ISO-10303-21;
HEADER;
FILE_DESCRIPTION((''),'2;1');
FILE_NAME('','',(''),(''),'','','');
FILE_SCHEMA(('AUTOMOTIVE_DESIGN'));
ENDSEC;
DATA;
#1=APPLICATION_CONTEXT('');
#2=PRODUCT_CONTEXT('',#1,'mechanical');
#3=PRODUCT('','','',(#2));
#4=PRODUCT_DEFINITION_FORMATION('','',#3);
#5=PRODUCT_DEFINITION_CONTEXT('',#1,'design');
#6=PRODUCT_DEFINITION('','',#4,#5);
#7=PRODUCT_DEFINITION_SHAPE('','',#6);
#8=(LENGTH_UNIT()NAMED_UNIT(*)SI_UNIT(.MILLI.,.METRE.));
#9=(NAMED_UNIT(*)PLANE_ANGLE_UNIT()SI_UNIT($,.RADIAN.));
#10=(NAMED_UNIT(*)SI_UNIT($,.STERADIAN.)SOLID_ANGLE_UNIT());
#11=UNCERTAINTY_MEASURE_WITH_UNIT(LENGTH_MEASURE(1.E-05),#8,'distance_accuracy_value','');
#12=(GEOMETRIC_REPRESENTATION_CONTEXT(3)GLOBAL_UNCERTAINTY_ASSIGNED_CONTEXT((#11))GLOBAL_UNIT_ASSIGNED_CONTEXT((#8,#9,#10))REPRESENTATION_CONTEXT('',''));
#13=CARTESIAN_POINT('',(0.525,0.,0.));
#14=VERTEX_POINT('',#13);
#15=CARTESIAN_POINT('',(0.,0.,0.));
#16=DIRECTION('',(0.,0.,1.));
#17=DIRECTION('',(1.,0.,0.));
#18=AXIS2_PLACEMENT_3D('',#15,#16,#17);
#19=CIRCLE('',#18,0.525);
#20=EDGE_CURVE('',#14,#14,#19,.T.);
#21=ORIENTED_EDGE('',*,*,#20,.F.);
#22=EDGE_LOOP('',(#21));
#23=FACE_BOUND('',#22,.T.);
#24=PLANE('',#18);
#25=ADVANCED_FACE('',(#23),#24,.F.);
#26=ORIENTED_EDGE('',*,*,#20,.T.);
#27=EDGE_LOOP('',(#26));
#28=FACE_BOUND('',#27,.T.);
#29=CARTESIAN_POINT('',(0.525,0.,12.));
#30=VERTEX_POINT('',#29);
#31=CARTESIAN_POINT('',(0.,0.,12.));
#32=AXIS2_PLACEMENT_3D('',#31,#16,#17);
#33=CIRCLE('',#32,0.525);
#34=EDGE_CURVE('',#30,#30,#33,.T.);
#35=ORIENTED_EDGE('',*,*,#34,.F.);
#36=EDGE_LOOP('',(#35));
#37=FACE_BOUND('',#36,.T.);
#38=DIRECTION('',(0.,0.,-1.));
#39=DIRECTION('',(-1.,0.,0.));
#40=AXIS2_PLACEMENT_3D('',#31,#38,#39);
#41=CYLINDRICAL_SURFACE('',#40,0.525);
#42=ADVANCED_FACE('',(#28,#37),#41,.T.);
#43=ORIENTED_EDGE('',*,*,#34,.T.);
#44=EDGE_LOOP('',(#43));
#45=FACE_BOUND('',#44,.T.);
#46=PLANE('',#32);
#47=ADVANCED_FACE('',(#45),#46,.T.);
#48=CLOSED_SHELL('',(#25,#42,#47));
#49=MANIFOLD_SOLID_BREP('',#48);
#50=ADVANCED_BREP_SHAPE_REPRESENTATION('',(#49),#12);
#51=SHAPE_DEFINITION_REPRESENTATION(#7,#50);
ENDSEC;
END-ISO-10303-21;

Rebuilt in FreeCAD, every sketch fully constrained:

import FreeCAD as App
import Part
import Sketcher
from FreeCAD import Vector

doc = App.newDocument("Part")
body = doc.addObject("PartDesign::Body", "Body")

# Sketch on XY plane
sketch1 = doc.addObject("Sketcher::SketchObject", "Sketch")
body.addObject(sketch1)
sketch1.AttachmentSupport = (doc.XY_Plane, [""])
sketch1.MapMode = "FlatFace"
sketch1.addGeometry(Part.Circle(Vector(0, 0, 0), Vector(0, 0, 1), 0.5), False)
sketch1.addConstraint(Sketcher.Constraint("Coincident", 0, 3, -1, 1))
sketch1.addConstraint(Sketcher.Constraint("Diameter", 0, 1.05))
pad1 = doc.addObject("PartDesign::Pad", "Pad")
body.addObject(pad1)
pad1.Profile = sketch1
pad1.Length = 12

doc.recompute()
